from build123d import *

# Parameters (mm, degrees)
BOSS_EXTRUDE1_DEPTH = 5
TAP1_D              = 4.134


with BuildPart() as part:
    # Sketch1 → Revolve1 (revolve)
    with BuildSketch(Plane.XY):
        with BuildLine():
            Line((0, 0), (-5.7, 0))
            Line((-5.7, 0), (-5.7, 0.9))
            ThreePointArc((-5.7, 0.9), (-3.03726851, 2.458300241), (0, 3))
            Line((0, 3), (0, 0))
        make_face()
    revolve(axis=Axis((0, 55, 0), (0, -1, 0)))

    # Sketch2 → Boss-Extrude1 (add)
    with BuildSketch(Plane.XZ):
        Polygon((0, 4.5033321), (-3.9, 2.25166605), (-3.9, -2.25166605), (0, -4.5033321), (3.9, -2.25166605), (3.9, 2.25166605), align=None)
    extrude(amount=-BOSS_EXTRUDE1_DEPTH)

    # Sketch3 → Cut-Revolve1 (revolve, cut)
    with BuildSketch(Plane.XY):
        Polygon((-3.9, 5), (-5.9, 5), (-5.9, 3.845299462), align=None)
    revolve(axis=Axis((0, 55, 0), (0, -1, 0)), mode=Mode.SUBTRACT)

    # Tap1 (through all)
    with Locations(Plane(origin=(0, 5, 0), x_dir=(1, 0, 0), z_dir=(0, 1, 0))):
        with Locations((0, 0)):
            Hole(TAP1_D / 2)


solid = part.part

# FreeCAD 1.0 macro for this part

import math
import FreeCAD as App
import Part
import Sketcher
from FreeCAD import Vector
Q = App.Units.Quantity

doc = App.newDocument("Part")
body = doc.addObject("PartDesign::Body", "Body")

sketch1 = doc.addObject("Sketcher::SketchObject", "Sketch")
body.addObject(sketch1)
sketch1.AttachmentSupport = (doc.XY_Plane, [""])
sketch1.MapMode = "FlatFace"
sketch1.addGeometry([
    Part.LineSegment(Vector(-5.7, 0, 0), Vector(0, 0, 0)),
    Part.LineSegment(Vector(0, 0, 0), Vector(0, 3, 0)),
    Part.ArcOfCircle(Part.Circle(Vector(0, -5.8, 0), Vector(0, 0, 1), 8.8), math.radians(90), math.radians(130)),
    Part.LineSegment(Vector(-5.7, 0.9, 0), Vector(-5.7, 0, 0)),
], False)
sketch1.addConstraint([
    Sketcher.Constraint("Coincident", 0, 2, 1, 1),
    Sketcher.Constraint("Coincident", 1, 2, 2, 1),
    Sketcher.Constraint("Coincident", 2, 2, 3, 1),
    Sketcher.Constraint("Coincident", 3, 2, 0, 1),
    Sketcher.Constraint("Horizontal", 0),
    Sketcher.Constraint("Vertical", 1),
    Sketcher.Constraint("Vertical", 3),
    Sketcher.Constraint("Coincident", 0, 2, -1, 1),
    Sketcher.Constraint("PointOnObject", 2, 3, -2),
    Sketcher.Constraint("DistanceY", 1, 1, 1, 2, Q("3 mm")),
    Sketcher.Constraint("DistanceX", 0, 1, 0, 2, Q("5.7 mm")),
    Sketcher.Constraint("DistanceY", 3, 2, 3, 1, Q("0.9 mm")),
])
revolution = doc.addObject("PartDesign::Revolution", "Revolution")
body.addObject(revolution)
revolution.Profile = sketch1
revolution.ReferenceAxis = (sketch1, ["V_Axis"])
revolution.Angle = 360

sketch2 = doc.addObject("Sketcher::SketchObject", "Sketch001")
body.addObject(sketch2)
sketch2.AttachmentSupport = (doc.XZ_Plane, [""])
sketch2.MapMode = "FlatFace"
sketch2.addGeometry([
    Part.LineSegment(Vector(0, 4.5, 0), Vector(-3.9, 2.3, 0)),
    Part.LineSegment(Vector(-3.9, 2.3, 0), Vector(-3.9, -2.3, 0)),
    Part.LineSegment(Vector(-3.9, -2.3, 0), Vector(0, -4.5, 0)),
    Part.LineSegment(Vector(0, -4.5, 0), Vector(3.9, -2.3, 0)),
    Part.LineSegment(Vector(3.9, -2.3, 0), Vector(3.9, 2.3, 0)),
    Part.LineSegment(Vector(3.9, 2.3, 0), Vector(0, 4.5, 0)),
], False)
sketch2.addConstraint([
    Sketcher.Constraint("Coincident", 0, 2, 1, 1),
    Sketcher.Constraint("Coincident", 1, 2, 2, 1),
    Sketcher.Constraint("Coincident", 2, 2, 3, 1),
    Sketcher.Constraint("Coincident", 3, 2, 4, 1),
    Sketcher.Constraint("Coincident", 4, 2, 5, 1),
    Sketcher.Constraint("Coincident", 5, 2, 0, 1),
    Sketcher.Constraint("Vertical", 1),
    Sketcher.Constraint("Vertical", 4),
    Sketcher.Constraint("Symmetric", 0, 2, 3, 2, -1, 1),
    Sketcher.Constraint("Symmetric", 2, 2, 5, 2, -1, 1),
    Sketcher.Constraint("PointOnObject", 2, 2, -2),
    Sketcher.Constraint("Parallel", 2, 5),
    Sketcher.Constraint("Horizontal", 1, 2, 3, 2),
    Sketcher.Constraint("Angle", 0, Q("-150 deg")),
    Sketcher.Constraint("DistanceX", 0, 2, -1, 1, Q("3.9 mm")),
    Sketcher.Constraint("DistanceY", 2, 2, 0, 2, Q("6.754998 mm")),
])
pad1 = doc.addObject("PartDesign::Pad", "Pad")
body.addObject(pad1)
pad1.Profile = sketch2
pad1.Length = 5
pad1.Reversed = True

sketch3 = doc.addObject("Sketcher::SketchObject", "Sketch002")
body.addObject(sketch3)
sketch3.AttachmentSupport = (doc.XY_Plane, [""])
sketch3.MapMode = "FlatFace"
sketch3.addGeometry([
    Part.LineSegment(Vector(-3.9, 5, 0), Vector(-5.9, 5, 0)),
    Part.LineSegment(Vector(-5.9, 5, 0), Vector(-5.9, 3.8, 0)),
    Part.LineSegment(Vector(-5.9, 3.8, 0), Vector(-3.9, 5, 0)),
], False)
sketch3.addConstraint([
    Sketcher.Constraint("Coincident", 0, 2, 1, 1),
    Sketcher.Constraint("Coincident", 1, 2, 2, 1),
    Sketcher.Constraint("Coincident", 2, 2, 0, 1),
    Sketcher.Constraint("Horizontal", 0),
    Sketcher.Constraint("Vertical", 1),
    Sketcher.Constraint("DistanceX", 0, 2, 0, 1, Q("2 mm")),
    Sketcher.Constraint("Angle", 2, Q("30 deg")),
    Sketcher.Constraint("DistanceY", -1, 1, 0, 2, Q("5 mm")),
    Sketcher.Constraint("DistanceX", 0, 2, -1, 1, Q("5.9 mm")),
])
groove = doc.addObject("PartDesign::Groove", "Groove")
body.addObject(groove)
groove.Profile = sketch3
groove.ReferenceAxis = (sketch3, ["V_Axis"])
groove.Angle = 360

sketch4 = doc.addObject("Sketcher::SketchObject", "Sketch003")
body.addObject(sketch4)
sketch4.AttachmentSupport = (doc.XZ_Plane, [""])
sketch4.MapMode = "FlatFace"
sketch4.AttachmentOffset = App.Placement(Vector(0, 0, -5), App.Rotation())
sketch4.addGeometry(Part.Circle(Vector(0, 0, 0), Vector(0, 0, 1), 2.1), False)
sketch4.addConstraint([
    Sketcher.Constraint("Coincident", 0, 3, -1, 1),
    Sketcher.Constraint("Diameter", 0, Q("4.134 mm")),
])
doc.recompute()
hole = doc.addObject("PartDesign::Hole", "Hole")
body.addObject(hole)
hole.Profile = sketch4
hole.ThreadType = "None"
hole.Diameter = 4.134
hole.DepthType = "ThroughAll"
hole.Reversed = True

doc.recompute()
